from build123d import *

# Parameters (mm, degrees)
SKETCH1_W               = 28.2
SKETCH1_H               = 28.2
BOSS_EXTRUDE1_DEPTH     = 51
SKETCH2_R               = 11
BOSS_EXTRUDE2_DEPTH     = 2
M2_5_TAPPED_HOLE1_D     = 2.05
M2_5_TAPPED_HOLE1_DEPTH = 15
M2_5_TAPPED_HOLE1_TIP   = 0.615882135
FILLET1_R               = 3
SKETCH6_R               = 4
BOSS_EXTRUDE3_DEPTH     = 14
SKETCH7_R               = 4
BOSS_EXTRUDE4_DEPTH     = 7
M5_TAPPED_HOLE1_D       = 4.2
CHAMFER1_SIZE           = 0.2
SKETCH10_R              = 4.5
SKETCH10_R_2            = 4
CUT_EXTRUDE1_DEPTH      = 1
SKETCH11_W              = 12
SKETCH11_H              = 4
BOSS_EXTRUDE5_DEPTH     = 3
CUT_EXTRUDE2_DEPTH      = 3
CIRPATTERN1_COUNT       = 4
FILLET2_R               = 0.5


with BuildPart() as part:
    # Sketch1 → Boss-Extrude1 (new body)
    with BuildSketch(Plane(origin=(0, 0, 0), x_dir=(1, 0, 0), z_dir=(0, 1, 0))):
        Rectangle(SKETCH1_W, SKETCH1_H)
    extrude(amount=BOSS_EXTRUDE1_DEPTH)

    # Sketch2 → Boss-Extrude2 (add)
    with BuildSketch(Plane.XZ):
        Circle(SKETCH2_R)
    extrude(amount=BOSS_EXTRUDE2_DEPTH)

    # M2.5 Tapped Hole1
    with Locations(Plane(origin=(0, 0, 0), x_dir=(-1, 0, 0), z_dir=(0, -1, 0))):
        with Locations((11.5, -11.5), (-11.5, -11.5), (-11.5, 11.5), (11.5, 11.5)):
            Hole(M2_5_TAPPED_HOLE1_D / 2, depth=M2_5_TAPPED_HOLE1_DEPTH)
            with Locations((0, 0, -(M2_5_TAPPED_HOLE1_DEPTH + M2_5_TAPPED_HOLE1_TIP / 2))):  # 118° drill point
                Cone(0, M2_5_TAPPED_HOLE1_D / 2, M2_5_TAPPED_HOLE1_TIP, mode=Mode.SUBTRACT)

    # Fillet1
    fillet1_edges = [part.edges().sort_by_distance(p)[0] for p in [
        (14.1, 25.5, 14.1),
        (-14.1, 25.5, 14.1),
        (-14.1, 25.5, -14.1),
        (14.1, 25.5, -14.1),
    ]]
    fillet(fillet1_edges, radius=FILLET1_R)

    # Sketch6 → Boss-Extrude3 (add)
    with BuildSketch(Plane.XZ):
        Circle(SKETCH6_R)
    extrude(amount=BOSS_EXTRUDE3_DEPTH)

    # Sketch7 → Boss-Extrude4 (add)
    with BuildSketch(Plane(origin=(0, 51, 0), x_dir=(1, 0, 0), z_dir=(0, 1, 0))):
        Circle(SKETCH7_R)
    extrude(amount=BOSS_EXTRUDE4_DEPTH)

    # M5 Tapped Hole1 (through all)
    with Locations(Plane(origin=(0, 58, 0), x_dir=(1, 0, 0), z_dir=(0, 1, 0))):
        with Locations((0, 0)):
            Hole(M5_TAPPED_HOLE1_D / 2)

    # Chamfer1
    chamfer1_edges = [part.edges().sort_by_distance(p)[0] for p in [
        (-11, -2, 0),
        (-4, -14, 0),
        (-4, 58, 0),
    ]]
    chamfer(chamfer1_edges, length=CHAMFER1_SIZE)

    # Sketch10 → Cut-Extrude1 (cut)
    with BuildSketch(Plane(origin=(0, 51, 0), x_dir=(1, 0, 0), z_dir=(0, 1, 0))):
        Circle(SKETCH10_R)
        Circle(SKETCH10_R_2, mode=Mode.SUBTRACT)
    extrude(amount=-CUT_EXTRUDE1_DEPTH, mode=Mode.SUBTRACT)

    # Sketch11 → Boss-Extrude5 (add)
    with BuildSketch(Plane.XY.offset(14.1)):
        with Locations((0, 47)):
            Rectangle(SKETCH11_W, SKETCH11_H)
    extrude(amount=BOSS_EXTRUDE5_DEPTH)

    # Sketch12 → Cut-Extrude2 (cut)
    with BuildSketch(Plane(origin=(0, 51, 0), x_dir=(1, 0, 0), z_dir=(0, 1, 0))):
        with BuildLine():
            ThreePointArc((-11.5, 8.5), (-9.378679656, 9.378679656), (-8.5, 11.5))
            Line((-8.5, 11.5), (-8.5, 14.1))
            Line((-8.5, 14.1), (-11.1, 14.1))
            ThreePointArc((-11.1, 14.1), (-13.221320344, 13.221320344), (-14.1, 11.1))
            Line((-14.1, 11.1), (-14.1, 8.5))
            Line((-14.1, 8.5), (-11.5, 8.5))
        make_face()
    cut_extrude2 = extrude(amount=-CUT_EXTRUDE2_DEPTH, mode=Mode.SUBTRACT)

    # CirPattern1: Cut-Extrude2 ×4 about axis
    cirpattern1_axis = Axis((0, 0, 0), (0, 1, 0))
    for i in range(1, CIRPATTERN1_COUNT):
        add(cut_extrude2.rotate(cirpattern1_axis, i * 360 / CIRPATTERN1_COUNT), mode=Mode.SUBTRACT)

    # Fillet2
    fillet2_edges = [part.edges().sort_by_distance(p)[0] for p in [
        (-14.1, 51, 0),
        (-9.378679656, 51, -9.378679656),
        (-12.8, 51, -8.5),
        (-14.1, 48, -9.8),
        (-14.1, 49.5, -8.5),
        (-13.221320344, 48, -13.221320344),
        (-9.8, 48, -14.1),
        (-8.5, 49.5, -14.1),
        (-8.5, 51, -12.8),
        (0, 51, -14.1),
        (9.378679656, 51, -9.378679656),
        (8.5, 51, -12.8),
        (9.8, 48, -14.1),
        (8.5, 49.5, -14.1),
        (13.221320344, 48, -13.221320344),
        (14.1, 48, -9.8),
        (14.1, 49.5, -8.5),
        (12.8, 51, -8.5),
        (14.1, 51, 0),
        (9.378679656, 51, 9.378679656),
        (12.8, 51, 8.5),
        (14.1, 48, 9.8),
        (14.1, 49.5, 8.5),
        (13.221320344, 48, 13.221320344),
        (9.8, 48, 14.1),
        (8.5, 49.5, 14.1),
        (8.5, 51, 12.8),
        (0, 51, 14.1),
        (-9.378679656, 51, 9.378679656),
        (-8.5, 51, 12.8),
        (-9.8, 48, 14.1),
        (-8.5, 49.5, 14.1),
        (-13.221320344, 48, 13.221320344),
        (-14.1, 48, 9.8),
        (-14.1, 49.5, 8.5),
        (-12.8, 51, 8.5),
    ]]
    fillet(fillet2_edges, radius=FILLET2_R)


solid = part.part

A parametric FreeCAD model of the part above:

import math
import FreeCAD as App
import Part
import Sketcher


def edges_at(feature, points):
    """Names of the edges that pass closest to the given points."""
    edges = feature.Shape.Edges
    near = lambda p: min(range(len(edges)), key=lambda i: edges[i].distToShape(Part.Vertex(*p))[0])
    return sorted({f"Edge{near(p) + 1}" for p in points})


def add_polygon(sketch, points):
    """Adds a closed chain of lines whose ends are joined by coincident constraints."""
    first, n = sketch.GeometryCount, len(points)
    for a, b in zip(points, points[1:] + points[:1]):
        sketch.addGeometry(Part.LineSegment(App.Vector(*a, 0), App.Vector(*b, 0)), False)
    for i in range(n):
        sketch.addConstraint(Sketcher.Constraint("Coincident", first + i, 2, first + (i + 1) % n, 1))

doc = App.newDocument("Part")
body = doc.addObject("PartDesign::Body", "Body")

# Sketch on XZ plane
sketch1 = body.newObject("Sketcher::SketchObject", "Sketch")
sketch1.AttachmentSupport = (doc.getObject("XZ_Plane"), [""])
sketch1.MapMode = "FlatFace"
add_polygon(sketch1, [(-14, -14), (-14, 14), (14, 14), (14, -14)])  # lines 0-3
sketch1.addConstraint([
    Sketcher.Constraint("Vertical", 0),
    Sketcher.Constraint("Horizontal", 1),
    Sketcher.Constraint("Vertical", 2),
    Sketcher.Constraint("Horizontal", 3),
    Sketcher.Constraint("Symmetric", 0, 2, 2, 2, -1, 1),
    Sketcher.Constraint("Equal", 3, 0),
    Sketcher.Constraint("DistanceX", 1, 1, 1, 2, 28.2),
])
pad1 = body.newObject("PartDesign::Pad", "Pad")
pad1.Profile = sketch1
pad1.Length = 51
pad1.Reversed = True

# Sketch on XZ plane
sketch2 = body.newObject("Sketcher::SketchObject", "Sketch001")
sketch2.AttachmentSupport = (doc.getObject("XZ_Plane"), [""])
sketch2.MapMode = "FlatFace"
sketch2.addGeometry(Part.Circle(App.Vector(0, 0, 0), App.Vector(0, 0, 1), 11), False)
sketch2.addConstraint([
    Sketcher.Constraint("Coincident", 0, 3, -1, 1),
    Sketcher.Constraint("Diameter", 0, 22.0),
])
pad2 = body.newObject("PartDesign::Pad", "Pad001")
pad2.Profile = sketch2
pad2.Length = 2

# Sketch on XZ plane
sketch3 = body.newObject("Sketcher::SketchObject", "Sketch002")
sketch3.AttachmentSupport = (doc.getObject("XZ_Plane"), [""])
sketch3.MapMode = "FlatFace"
sketch3.addGeometry([
    Part.Circle(App.Vector(-11.5, 11.5, 0), App.Vector(0, 0, 1), 1),
    Part.Circle(App.Vector(11.5, 11.5, 0), App.Vector(0, 0, 1), 1),
    Part.Circle(App.Vector(11.5, -11.5, 0), App.Vector(0, 0, 1), 1),
    Part.Circle(App.Vector(-11.5, -11.5, 0), App.Vector(0, 0, 1), 1),
], False)
sketch3.addConstraint([
    Sketcher.Constraint("Equal", 0, 1),
    Sketcher.Constraint("Equal", 1, 2),
    Sketcher.Constraint("Equal", 2, 3),
    Sketcher.Constraint("Symmetric", 0, 3, 2, 3, -1, 1),
    Sketcher.Constraint("Symmetric", 1, 3, 3, 3, -1, 1),
    Sketcher.Constraint("Symmetric", 0, 3, 1, 3, -2),
    Sketcher.Constraint("Diameter", 0, 2.05),
    Sketcher.Constraint("DistanceX", 0, 3, 1, 3, 23.0),
    Sketcher.Constraint("DistanceY", 2, 3, 1, 3, 23.0),
])
doc.recompute()
hole = body.newObject("PartDesign::Hole", "Hole")
hole.Profile = sketch3
hole.ThreadType = "None"
hole.Diameter = 2.05
hole.DepthType = "Dimension"
hole.Depth = 15
hole.DrillPoint = "Angled"
hole.DrillPointAngle = 118
doc.recompute()

fillet = body.newObject("PartDesign::Fillet", "Fillet")
fillet.Base = (hole, edges_at(hole, [
    (14.1, 25.5, 14.1),
    (-14.1, 25.5, 14.1),
    (-14.1, 25.5, -14.1),
    (14.1, 25.5, -14.1),
]))
fillet.Radius = 3

# Sketch on XZ plane
sketch4 = body.newObject("Sketcher::SketchObject", "Sketch003")
sketch4.AttachmentSupport = (doc.getObject("XZ_Plane"), [""])
sketch4.MapMode = "FlatFace"
sketch4.addGeometry(Part.Circle(App.Vector(0, 0, 0), App.Vector(0, 0, 1), 4), False)
sketch4.addConstraint([
    Sketcher.Constraint("Coincident", 0, 3, -1, 1),
    Sketcher.Constraint("Diameter", 0, 8.0),
])
pad3 = body.newObject("PartDesign::Pad", "Pad002")
pad3.Profile = sketch4
pad3.Length = 14

# Sketch on XZ plane
sketch5 = body.newObject("Sketcher::SketchObject", "Sketch004")
sketch5.AttachmentSupport = (doc.getObject("XZ_Plane"), [""])
sketch5.MapMode = "FlatFace"
sketch5.AttachmentOffset = App.Placement(App.Vector(0, 0, -51), App.Rotation())
sketch5.addGeometry(Part.Circle(App.Vector(0, 0, 0), App.Vector(0, 0, 1), 4), False)
sketch5.addConstraint([
    Sketcher.Constraint("Coincident", 0, 3, -1, 1),
    Sketcher.Constraint("Diameter", 0, 8.0),
])
pad4 = body.newObject("PartDesign::Pad", "Pad003")
pad4.Profile = sketch5
pad4.Length = 7
pad4.Reversed = True

# Sketch on XZ plane
sketch6 = body.newObject("Sketcher::SketchObject", "Sketch005")
sketch6.AttachmentSupport = (doc.getObject("XZ_Plane"), [""])
sketch6.MapMode = "FlatFace"
sketch6.AttachmentOffset = App.Placement(App.Vector(0, 0, -58), App.Rotation())
sketch6.addGeometry(Part.Circle(App.Vector(0, 0, 0), App.Vector(0, 0, 1), 2.1), False)
sketch6.addConstraint([
    Sketcher.Constraint("Coincident", 0, 3, -1, 1),
    Sketcher.Constraint("Diameter", 0, 4.2),
])
doc.recompute()
hole2 = body.newObject("PartDesign::Hole", "Hole001")
hole2.Profile = sketch6
hole2.ThreadType = "None"
hole2.Diameter = 4.2
hole2.DepthType = "ThroughAll"
hole2.Reversed = True
doc.recompute()

chamfer = body.newObject("PartDesign::Chamfer", "Chamfer")
chamfer.Base = (hole2, edges_at(hole2, [(-11, -2, 0), (-4, -14, 0), (-4, 58, 0)]))
chamfer.Size = 0.2

# Sketch on XZ plane
sketch7 = body.newObject("Sketcher::SketchObject", "Sketch006")
sketch7.AttachmentSupport = (doc.getObject("XZ_Plane"), [""])
sketch7.MapMode = "FlatFace"
sketch7.AttachmentOffset = App.Placement(App.Vector(0, 0, -51), App.Rotation())
sketch7.addGeometry([
    Part.Circle(App.Vector(0, 0, 0), App.Vector(0, 0, 1), 4.5),
    Part.Circle(App.Vector(0, 0, 0), App.Vector(0, 0, 1), 4),
], False)
sketch7.addConstraint([
    Sketcher.Constraint("Coincident", 0, 3, -1, 1),
    Sketcher.Constraint("Coincident", 1, 3, -1, 1),
    Sketcher.Constraint("Diameter", 0, 9.0),
    Sketcher.Constraint("Diameter", 1, 8.0),
])
pocket1 = body.newObject("PartDesign::Pocket", "Pocket")
pocket1.Profile = sketch7
pocket1.Length = 1
pocket1.Reversed = True

# Sketch on XY plane
sketch8 = body.newObject("Sketcher::SketchObject", "Sketch007")
sketch8.AttachmentSupport = (doc.getObject("XY_Plane"), [""])
sketch8.MapMode = "FlatFace"
sketch8.AttachmentOffset = App.Placement(App.Vector(0, 0, 14.1), App.Rotation())
add_polygon(sketch8, [(-6, 49), (-6, 45), (6, 45), (6, 49)])  # lines 0-3
sketch8.addConstraint([
    Sketcher.Constraint("Vertical", 0),
    Sketcher.Constraint("Horizontal", 1),
    Sketcher.Constraint("Vertical", 2),
    Sketcher.Constraint("Horizontal", 3),
    Sketcher.Constraint("DistanceX", 1, 1, 1, 2, 12.0),
    Sketcher.Constraint("DistanceY", 0, 2, 0, 1, 4.0),
    Sketcher.Constraint("DistanceX", 0, 2, -1, 1, 6.0),
    Sketcher.Constraint("DistanceY", -1, 1, 0, 2, 45.0),
])
pad5 = body.newObject("PartDesign::Pad", "Pad004")
pad5.Profile = sketch8
pad5.Length = 3

# Sketch on XZ plane
sketch9 = body.newObject("Sketcher::SketchObject", "Sketch008")
sketch9.AttachmentSupport = (doc.getObject("XZ_Plane"), [""])
sketch9.MapMode = "FlatFace"
sketch9.AttachmentOffset = App.Placement(App.Vector(0, 0, -51), App.Rotation())
sketch9.addGeometry([
    Part.ArcOfCircle(Part.Circle(App.Vector(-11.5, -11.5, 0), App.Vector(0, 0, 1), 3), math.radians(0), math.radians(90)),  # 0
    Part.LineSegment(App.Vector(-8.5, -11.5, 0), App.Vector(-8.5, -14.1, 0)),  # 1
    Part.LineSegment(App.Vector(-8.5, -14.1, 0), App.Vector(-11.1, -14.1, 0)),  # 2
    Part.ArcOfCircle(Part.Circle(App.Vector(-11.1, -11.1, 0), App.Vector(0, 0, 1), 3), math.radians(180), math.radians(270)),  # 3
    Part.LineSegment(App.Vector(-14.1, -11.1, 0), App.Vector(-14.1, -8.5, 0)),  # 4
    Part.LineSegment(App.Vector(-14.1, -8.5, 0), App.Vector(-11.5, -8.5, 0)),  # 5
], False)
sketch9.addConstraint([
    Sketcher.Constraint("Tangent", 0, 1, 1, 1),
    Sketcher.Constraint("Coincident", 1, 2, 2, 1),
    Sketcher.Constraint("Tangent", 2, 2, 3, 2),
    Sketcher.Constraint("Tangent", 3, 1, 4, 1),
    Sketcher.Constraint("Coincident", 4, 2, 5, 1),
    Sketcher.Constraint("Tangent", 5, 2, 0, 2),
    Sketcher.Constraint("Vertical", 1),
    Sketcher.Constraint("Horizontal", 2),
    Sketcher.Constraint("Vertical", 4),
    Sketcher.Constraint("Horizontal", 5),
    Sketcher.Constraint("Equal", 0, 3),
    Sketcher.Constraint("Equal", 5, 1),
    Sketcher.Constraint("Radius", 0, 3.0),
    Sketcher.Constraint("DistanceX", 2, 2, 2, 1, 2.6),
    Sketcher.Constraint("DistanceX", 0, 3, -1, 1, 11.5),
    Sketcher.Constraint("DistanceY", 0, 3, -1, 1, 11.5),
])
pocket2 = body.newObject("PartDesign::Pocket", "Pocket001")
pocket2.Profile = sketch9
pocket2.Length = 3
pocket2.Reversed = True
doc.recompute()

polarpattern = body.newObject("PartDesign::PolarPattern", "PolarPattern")
polarpattern.Originals = [pocket2]
polarpattern.Axis = (doc.getObject("Y_Axis"), [""])
polarpattern.Angle = 360
polarpattern.Occurrences = 4
body.Tip = polarpattern
doc.recompute()

fillet2 = body.newObject("PartDesign::Fillet", "Fillet001")
fillet2.Base = (polarpattern, edges_at(polarpattern, [
    (-14.1, 51, 0),
    (-9.379, 51, -9.379),
    (-12.8, 51, -8.5),
    (-14.1, 48, -9.8),
    (-14.1, 49.5, -8.5),
    (-13.221, 48, -13.221),
    (-9.8, 48, -14.1),
    (-8.5, 49.5, -14.1),
    (-8.5, 51, -12.8),
    (0, 51, -14.1),
    (9.379, 51, -9.379),
    (8.5, 51, -12.8),
    (9.8, 48, -14.1),
    (8.5, 49.5, -14.1),
    (13.221, 48, -13.221),
    (14.1, 48, -9.8),
    (14.1, 49.5, -8.5),
    (12.8, 51, -8.5),
    (14.1, 51, 0),
    (9.379, 51, 9.379),
    (12.8, 51, 8.5),
    (14.1, 48, 9.8),
    (14.1, 49.5, 8.5),
    (13.221, 48, 13.221),
    (9.8, 48, 14.1),
    (8.5, 49.5, 14.1),
    (8.5, 51, 12.8),
    (0, 51, 14.1),
    (-9.379, 51, 9.379),
    (-8.5, 51, 12.8),
    (-9.8, 48, 14.1),
    (-8.5, 49.5, 14.1),
    (-13.221, 48, 13.221),
    (-14.1, 48, 9.8),
    (-14.1, 49.5, 8.5),
    (-12.8, 51, 8.5),
]))
fillet2.Radius = 0.5

doc.recompute()
